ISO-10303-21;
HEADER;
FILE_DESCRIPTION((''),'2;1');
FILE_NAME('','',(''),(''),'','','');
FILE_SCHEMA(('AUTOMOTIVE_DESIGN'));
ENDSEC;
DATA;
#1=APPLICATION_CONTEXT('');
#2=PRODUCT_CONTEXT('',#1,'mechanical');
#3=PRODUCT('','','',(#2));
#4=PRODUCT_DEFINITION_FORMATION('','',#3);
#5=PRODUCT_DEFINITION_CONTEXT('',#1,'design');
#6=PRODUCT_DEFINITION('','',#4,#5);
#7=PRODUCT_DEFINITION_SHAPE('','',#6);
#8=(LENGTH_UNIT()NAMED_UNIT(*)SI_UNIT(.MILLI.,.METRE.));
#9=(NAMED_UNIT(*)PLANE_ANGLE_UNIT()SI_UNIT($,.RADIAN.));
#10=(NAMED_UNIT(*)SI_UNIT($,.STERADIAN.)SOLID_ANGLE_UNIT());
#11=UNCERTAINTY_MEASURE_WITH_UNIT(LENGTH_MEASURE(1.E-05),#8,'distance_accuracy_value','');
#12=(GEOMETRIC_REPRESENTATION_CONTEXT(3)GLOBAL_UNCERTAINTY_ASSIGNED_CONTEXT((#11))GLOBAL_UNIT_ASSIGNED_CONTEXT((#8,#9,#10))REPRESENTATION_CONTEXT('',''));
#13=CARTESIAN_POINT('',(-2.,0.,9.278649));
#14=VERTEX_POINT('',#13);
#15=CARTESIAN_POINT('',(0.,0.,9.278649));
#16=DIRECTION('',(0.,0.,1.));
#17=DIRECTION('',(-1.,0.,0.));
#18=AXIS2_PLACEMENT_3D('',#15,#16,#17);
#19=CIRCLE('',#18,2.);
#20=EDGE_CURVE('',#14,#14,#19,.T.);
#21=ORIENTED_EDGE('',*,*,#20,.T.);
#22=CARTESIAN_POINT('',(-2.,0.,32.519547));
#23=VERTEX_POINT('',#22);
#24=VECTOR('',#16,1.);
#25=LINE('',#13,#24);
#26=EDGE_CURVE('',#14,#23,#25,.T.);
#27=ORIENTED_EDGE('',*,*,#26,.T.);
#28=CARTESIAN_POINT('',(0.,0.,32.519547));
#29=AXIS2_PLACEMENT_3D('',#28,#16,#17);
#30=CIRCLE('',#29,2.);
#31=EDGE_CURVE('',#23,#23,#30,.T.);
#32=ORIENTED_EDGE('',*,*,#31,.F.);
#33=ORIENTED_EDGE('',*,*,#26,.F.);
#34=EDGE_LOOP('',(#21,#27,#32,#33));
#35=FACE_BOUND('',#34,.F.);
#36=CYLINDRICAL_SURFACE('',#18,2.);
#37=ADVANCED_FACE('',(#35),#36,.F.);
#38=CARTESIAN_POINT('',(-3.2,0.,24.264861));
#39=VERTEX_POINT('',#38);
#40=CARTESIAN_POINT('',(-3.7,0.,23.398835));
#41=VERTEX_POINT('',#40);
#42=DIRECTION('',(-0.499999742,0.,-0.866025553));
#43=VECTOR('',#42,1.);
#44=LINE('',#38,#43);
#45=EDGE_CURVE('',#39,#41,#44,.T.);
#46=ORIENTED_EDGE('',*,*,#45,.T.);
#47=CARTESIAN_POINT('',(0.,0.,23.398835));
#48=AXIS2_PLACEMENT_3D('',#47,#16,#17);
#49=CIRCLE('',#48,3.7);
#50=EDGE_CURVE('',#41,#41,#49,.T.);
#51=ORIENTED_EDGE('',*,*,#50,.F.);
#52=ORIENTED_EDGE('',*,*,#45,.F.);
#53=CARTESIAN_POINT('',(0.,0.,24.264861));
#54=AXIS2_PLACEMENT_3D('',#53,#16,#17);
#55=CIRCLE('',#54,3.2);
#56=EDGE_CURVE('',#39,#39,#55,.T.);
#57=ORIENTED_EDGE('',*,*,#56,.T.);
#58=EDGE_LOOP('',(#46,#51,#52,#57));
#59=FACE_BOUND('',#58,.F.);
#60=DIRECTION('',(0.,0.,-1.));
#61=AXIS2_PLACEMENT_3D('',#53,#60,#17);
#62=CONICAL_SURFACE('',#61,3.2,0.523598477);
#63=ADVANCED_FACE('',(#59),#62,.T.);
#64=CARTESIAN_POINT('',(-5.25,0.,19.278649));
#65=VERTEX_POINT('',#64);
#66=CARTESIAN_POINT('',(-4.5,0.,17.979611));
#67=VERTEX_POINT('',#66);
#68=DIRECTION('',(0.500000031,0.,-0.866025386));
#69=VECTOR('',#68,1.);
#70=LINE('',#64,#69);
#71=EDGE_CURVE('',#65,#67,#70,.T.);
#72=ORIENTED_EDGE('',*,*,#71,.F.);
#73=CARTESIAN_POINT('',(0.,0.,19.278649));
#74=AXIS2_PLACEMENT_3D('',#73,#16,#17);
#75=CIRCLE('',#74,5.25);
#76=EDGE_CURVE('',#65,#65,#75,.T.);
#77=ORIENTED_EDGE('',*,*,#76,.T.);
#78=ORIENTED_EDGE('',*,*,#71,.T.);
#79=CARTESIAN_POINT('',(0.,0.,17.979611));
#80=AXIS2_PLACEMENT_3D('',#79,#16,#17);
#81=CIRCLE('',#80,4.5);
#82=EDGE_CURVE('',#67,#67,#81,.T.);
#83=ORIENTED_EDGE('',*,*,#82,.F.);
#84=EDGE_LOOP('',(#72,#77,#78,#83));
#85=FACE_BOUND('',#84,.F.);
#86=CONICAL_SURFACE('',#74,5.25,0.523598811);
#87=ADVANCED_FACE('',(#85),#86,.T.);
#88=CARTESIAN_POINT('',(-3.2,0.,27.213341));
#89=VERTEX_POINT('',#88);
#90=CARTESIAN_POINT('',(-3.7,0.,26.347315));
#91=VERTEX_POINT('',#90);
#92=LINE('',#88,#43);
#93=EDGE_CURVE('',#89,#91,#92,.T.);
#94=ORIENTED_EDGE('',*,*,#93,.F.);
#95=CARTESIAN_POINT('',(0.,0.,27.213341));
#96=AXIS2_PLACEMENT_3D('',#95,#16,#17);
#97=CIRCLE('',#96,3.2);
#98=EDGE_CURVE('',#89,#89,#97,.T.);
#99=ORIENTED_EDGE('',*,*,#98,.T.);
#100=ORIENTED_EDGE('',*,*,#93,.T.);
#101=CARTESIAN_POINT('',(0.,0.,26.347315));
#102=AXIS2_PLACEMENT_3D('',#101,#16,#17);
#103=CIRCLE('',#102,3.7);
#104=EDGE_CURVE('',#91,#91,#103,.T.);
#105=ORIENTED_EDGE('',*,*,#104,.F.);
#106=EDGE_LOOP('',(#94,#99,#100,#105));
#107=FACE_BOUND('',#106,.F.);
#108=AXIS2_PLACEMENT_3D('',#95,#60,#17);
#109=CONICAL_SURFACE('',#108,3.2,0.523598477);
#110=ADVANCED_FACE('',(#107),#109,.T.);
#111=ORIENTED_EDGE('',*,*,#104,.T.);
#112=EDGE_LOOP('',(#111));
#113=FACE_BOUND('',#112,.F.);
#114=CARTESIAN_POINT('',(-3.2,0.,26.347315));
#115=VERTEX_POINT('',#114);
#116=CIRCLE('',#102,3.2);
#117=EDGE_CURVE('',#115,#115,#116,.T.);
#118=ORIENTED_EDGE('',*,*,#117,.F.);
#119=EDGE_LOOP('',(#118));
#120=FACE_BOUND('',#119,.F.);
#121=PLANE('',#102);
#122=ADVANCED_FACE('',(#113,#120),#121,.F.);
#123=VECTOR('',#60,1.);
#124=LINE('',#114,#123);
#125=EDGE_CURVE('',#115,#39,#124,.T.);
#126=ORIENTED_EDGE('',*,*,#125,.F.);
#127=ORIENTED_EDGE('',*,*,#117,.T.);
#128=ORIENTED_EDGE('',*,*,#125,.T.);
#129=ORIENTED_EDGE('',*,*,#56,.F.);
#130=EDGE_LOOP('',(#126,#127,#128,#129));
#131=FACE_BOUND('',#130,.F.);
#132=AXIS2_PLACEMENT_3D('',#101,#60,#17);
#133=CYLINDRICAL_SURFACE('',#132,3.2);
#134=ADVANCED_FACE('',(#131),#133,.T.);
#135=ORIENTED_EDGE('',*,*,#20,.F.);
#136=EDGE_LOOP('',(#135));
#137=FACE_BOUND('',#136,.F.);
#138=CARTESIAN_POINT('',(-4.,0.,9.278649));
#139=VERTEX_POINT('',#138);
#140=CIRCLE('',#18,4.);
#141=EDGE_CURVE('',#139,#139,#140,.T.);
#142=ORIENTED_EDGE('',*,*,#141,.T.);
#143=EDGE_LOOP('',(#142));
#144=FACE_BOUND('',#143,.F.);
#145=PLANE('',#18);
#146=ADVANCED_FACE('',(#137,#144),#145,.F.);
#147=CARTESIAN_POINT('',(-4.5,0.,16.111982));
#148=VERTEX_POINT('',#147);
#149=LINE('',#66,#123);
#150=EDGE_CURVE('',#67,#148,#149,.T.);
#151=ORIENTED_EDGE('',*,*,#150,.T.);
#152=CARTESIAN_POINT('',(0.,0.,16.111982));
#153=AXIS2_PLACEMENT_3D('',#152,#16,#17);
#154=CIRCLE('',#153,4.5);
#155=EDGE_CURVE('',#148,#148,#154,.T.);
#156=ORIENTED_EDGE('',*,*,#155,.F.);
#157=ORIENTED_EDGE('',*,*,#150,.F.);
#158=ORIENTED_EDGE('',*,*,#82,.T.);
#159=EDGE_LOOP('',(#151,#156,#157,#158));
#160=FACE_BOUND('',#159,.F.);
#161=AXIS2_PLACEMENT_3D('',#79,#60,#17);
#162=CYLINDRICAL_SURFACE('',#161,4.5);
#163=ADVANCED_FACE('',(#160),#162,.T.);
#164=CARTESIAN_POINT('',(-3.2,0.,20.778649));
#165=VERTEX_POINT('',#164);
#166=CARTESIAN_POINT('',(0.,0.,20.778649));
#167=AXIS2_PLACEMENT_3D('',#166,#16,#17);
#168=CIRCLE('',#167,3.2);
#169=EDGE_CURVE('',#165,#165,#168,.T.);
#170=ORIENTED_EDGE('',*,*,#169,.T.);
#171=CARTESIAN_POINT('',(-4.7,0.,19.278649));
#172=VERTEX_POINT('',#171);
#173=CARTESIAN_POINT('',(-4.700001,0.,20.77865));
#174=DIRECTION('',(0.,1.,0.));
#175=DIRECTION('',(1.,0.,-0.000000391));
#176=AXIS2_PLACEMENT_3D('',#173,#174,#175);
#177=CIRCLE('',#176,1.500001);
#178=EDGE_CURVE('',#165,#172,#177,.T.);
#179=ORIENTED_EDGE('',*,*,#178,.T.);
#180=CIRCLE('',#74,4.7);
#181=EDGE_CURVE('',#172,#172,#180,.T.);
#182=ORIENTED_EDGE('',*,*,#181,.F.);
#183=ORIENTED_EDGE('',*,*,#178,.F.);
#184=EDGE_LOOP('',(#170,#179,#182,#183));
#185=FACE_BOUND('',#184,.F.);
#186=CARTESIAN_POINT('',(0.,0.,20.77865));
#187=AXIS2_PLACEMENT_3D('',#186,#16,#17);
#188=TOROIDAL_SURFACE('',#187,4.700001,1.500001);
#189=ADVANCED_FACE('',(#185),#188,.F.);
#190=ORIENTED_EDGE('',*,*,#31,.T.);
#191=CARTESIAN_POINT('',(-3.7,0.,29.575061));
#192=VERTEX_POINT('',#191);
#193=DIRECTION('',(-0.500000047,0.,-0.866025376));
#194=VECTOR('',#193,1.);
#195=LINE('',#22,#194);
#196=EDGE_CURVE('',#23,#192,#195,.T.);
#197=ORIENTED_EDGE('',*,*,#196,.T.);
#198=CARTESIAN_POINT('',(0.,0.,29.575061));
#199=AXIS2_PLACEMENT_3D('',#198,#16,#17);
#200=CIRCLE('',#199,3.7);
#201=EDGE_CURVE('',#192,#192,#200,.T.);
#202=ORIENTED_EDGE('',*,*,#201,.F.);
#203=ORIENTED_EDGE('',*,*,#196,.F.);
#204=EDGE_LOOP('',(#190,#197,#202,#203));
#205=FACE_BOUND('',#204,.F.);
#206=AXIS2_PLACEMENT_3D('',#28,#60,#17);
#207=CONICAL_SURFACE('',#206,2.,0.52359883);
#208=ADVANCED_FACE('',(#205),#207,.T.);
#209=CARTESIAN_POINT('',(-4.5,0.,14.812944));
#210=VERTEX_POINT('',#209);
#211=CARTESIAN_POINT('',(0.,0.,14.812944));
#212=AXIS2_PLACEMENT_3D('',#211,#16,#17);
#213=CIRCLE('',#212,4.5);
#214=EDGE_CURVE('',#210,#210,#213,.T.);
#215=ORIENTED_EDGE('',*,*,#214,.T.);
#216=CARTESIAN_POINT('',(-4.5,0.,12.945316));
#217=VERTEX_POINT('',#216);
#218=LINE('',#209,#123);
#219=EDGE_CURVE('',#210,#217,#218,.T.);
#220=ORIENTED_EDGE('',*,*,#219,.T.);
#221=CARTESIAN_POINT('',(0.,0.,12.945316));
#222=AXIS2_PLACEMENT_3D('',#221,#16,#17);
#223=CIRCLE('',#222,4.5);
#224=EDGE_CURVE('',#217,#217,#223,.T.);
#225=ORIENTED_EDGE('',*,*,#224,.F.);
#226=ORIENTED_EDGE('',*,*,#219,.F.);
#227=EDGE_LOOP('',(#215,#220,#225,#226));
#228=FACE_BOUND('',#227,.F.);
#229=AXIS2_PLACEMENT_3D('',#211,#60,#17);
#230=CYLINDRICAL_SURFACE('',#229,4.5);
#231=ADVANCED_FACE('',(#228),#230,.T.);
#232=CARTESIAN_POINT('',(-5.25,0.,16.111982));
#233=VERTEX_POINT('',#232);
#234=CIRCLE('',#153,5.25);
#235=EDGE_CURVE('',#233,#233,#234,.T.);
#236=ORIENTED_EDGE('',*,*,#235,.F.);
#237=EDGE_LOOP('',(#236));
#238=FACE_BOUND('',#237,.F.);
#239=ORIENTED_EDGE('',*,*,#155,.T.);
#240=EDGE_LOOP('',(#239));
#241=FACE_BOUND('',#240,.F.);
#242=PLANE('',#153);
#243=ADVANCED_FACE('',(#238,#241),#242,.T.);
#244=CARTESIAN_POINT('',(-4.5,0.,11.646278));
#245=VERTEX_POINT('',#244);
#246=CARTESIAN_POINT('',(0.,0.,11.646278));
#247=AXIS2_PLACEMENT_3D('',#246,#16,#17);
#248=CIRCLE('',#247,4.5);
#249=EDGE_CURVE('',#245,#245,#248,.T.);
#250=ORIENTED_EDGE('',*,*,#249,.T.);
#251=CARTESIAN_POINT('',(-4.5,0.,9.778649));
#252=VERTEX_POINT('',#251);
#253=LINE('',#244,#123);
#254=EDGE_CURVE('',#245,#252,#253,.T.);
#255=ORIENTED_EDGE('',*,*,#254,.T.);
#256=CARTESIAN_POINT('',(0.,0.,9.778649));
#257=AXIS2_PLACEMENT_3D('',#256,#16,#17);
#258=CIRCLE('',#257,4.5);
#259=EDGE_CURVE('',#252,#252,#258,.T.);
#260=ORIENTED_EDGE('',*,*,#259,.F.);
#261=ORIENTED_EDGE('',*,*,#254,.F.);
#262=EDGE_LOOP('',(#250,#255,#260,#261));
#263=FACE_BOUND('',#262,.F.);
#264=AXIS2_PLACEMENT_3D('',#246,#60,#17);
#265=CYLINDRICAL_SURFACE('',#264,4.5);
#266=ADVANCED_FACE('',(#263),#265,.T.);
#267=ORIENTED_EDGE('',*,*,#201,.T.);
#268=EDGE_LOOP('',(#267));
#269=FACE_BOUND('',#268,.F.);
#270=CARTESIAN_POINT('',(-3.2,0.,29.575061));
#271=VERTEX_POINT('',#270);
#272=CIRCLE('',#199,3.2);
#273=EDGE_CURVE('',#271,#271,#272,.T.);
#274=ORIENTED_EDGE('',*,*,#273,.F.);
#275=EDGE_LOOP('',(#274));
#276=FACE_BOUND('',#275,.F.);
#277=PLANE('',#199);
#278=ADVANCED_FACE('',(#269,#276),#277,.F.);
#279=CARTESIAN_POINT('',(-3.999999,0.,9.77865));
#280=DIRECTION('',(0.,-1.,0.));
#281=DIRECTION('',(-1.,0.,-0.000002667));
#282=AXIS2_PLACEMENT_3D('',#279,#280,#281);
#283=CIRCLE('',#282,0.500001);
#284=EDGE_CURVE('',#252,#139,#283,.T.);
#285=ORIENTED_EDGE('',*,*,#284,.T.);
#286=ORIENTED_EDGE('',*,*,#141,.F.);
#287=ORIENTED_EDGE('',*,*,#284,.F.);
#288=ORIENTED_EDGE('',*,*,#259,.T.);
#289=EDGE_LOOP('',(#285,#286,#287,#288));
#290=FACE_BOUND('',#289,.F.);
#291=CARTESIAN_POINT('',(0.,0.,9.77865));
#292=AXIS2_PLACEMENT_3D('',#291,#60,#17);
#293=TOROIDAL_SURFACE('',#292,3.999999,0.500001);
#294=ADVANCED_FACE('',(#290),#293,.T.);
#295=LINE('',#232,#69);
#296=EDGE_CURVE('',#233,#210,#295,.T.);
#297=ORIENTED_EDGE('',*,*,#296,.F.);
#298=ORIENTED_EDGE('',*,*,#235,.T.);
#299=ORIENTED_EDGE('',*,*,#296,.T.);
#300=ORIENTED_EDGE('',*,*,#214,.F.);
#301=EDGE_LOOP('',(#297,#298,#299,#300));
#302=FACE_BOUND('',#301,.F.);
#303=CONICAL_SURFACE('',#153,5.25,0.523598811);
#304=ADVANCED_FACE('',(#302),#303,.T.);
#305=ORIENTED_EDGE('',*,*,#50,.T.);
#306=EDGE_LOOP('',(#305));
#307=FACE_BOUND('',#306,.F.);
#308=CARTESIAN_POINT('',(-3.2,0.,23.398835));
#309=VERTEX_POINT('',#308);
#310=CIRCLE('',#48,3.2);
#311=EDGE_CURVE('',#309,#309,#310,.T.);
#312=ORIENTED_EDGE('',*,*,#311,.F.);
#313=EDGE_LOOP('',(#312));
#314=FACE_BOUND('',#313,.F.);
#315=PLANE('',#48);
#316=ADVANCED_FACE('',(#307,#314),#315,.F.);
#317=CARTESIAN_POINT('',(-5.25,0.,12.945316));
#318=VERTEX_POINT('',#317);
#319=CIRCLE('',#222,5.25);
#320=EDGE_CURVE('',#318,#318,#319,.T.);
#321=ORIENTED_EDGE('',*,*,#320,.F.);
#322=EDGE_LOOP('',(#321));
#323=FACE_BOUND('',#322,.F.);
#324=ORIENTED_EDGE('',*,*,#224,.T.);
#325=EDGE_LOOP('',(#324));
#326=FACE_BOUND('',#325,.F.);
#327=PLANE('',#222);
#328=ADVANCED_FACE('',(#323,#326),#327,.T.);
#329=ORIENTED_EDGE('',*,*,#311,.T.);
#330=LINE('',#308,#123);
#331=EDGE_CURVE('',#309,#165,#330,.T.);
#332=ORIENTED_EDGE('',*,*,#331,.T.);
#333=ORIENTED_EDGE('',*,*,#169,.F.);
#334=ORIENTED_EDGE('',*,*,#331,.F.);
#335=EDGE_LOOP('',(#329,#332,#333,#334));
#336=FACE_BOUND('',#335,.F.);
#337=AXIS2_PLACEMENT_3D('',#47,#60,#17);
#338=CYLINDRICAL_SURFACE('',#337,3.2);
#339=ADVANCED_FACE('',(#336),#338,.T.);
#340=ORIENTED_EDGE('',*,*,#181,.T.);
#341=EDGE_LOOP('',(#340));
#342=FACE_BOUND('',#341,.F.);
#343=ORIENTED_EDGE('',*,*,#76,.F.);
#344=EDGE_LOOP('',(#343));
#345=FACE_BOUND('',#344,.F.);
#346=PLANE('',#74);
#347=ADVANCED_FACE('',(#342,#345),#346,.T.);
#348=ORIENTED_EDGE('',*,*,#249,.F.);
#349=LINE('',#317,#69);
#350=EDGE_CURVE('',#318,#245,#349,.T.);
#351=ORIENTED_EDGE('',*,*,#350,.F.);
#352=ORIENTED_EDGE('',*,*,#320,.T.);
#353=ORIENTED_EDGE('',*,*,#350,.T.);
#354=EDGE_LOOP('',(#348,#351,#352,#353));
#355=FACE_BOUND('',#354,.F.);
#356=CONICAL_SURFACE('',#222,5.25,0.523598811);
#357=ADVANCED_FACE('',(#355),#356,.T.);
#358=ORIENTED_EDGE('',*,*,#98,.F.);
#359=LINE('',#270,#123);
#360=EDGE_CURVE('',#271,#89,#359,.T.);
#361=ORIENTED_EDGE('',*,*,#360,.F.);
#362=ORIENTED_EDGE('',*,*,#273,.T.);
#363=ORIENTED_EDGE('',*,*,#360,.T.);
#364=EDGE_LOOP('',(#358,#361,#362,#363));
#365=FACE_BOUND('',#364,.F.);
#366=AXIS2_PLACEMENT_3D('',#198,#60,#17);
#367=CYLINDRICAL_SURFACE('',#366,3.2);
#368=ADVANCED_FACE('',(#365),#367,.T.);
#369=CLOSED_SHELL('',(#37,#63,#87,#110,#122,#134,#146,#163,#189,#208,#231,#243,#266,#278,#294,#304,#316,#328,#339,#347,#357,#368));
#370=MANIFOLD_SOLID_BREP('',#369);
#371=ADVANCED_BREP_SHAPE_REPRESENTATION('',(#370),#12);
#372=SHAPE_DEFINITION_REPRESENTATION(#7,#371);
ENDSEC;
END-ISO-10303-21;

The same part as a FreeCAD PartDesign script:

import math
import FreeCAD as App
import Part
import Sketcher

V = App.Vector
Q = App.Units.Quantity

doc = App.newDocument("Part")
body = doc.addObject("PartDesign::Body", "Body")

# Sketch on XZ plane
sketch1 = doc.addObject("Sketcher::SketchObject", "Sketch")
body.addObject(sketch1)
sketch1.AttachmentSupport = (doc.XZ_Plane, [""])
sketch1.MapMode = "FlatFace"
sketch1.addGeometry([
    Part.LineSegment(V(-4, 9.3, 0), V(-2, 9.3, 0)),  # 0
    Part.LineSegment(V(-2, 9.3, 0), V(-2, 32.5, 0)),  # 1
    Part.LineSegment(V(-2, 32.5, 0), V(-3.7, 29.6, 0)),  # 2
    Part.LineSegment(V(-3.7, 29.6, 0), V(-3.2, 29.6, 0)),  # 3
    Part.LineSegment(V(-3.2, 29.6, 0), V(-3.2, 27.2, 0)),  # 4
    Part.LineSegment(V(-3.2, 27.2, 0), V(-3.7, 26.3, 0)),  # 5
    Part.LineSegment(V(-3.7, 26.3, 0), V(-3.2, 26.3, 0)),  # 6
    Part.LineSegment(V(-3.2, 26.3, 0), V(-3.2, 24.3, 0)),  # 7
    Part.LineSegment(V(-3.2, 24.3, 0), V(-3.7, 23.4, 0)),  # 8
    Part.LineSegment(V(-3.7, 23.4, 0), V(-3.2, 23.4, 0)),  # 9
    Part.LineSegment(V(-3.2, 23.4, 0), V(-3.2, 20.8, 0)),  # 10
    Part.ArcOfCircle(Part.Circle(V(-4.7, 20.8, 0), V(0, 0, 1), 1.5), math.radians(-90), math.radians(0)),  # 11
    Part.LineSegment(V(-4.7, 19.3, 0), V(-5.2, 19.3, 0)),  # 12
    Part.LineSegment(V(-5.2, 19.3, 0), V(-4.5, 18, 0)),  # 13
    Part.LineSegment(V(-4.5, 18, 0), V(-4.5, 16.1, 0)),  # 14
    Part.LineSegment(V(-4.5, 16.1, 0), V(-5.2, 16.1, 0)),  # 15
    Part.LineSegment(V(-5.2, 16.1, 0), V(-4.5, 14.8, 0)),  # 16
    Part.LineSegment(V(-4.5, 14.8, 0), V(-4.5, 12.9, 0)),  # 17
    Part.LineSegment(V(-4.5, 12.9, 0), V(-5.2, 12.9, 0)),  # 18
    Part.LineSegment(V(-5.2, 12.9, 0), V(-4.5, 11.6, 0)),  # 19
    Part.LineSegment(V(-4.5, 11.6, 0), V(-4.5, 9.8, 0)),  # 20
    Part.ArcOfCircle(Part.Circle(V(-4, 9.8, 0), V(0, 0, 1), 0.5), math.radians(-180), math.radians(-90)),  # 21
], False)
sketch1.addConstraint([
    Sketcher.Constraint("Coincident", 0, 2, 1, 1),
    Sketcher.Constraint("Coincident", 1, 2, 2, 1),
    Sketcher.Constraint("Coincident", 2, 2, 3, 1),
    Sketcher.Constraint("Coincident", 3, 2, 4, 1),
    Sketcher.Constraint("Coincident", 4, 2, 5, 1),
    Sketcher.Constraint("Coincident", 5, 2, 6, 1),
    Sketcher.Constraint("Coincident", 6, 2, 7, 1),
    Sketcher.Constraint("Coincident", 7, 2, 8, 1),
    Sketcher.Constraint("Coincident", 8, 2, 9, 1),
    Sketcher.Constraint("Coincident", 9, 2, 10, 1),
    Sketcher.Constraint("Tangent", 10, 2, 11, 2),
    Sketcher.Constraint("Tangent", 11, 1, 12, 1),
    Sketcher.Constraint("Coincident", 12, 2, 13, 1),
    Sketcher.Constraint("Coincident", 13, 2, 14, 1),
    Sketcher.Constraint("Coincident", 14, 2, 15, 1),
    Sketcher.Constraint("Coincident", 15, 2, 16, 1),
    Sketcher.Constraint("Coincident", 16, 2, 17, 1),
    Sketcher.Constraint("Coincident", 17, 2, 18, 1),
    Sketcher.Constraint("Coincident", 18, 2, 19, 1),
    Sketcher.Constraint("Coincident", 19, 2, 20, 1),
    Sketcher.Constraint("Coincident", 20, 2, 21, 1),
    Sketcher.Constraint("Coincident", 21, 2, 0, 1),
    Sketcher.Constraint("Horizontal", 0),
    Sketcher.Constraint("Vertical", 1),
    Sketcher.Constraint("Horizontal", 3),
    Sketcher.Constraint("Vertical", 4),
    Sketcher.Constraint("Horizontal", 6),
    Sketcher.Constraint("Vertical", 7),
    Sketcher.Constraint("Horizontal", 9),
    Sketcher.Constraint("Vertical", 10),
    Sketcher.Constraint("Horizontal", 12),
    Sketcher.Constraint("Vertical", 14),
    Sketcher.Constraint("Horizontal", 15),
    Sketcher.Constraint("Vertical", 17),
    Sketcher.Constraint("Horizontal", 18),
    Sketcher.Constraint("Vertical", 20),
    Sketcher.Constraint("Parallel", 2, 5),
    Sketcher.Constraint("Parallel", 5, 8),
    Sketcher.Constraint("Parallel", 13, 16),
    Sketcher.Constraint("Parallel", 16, 19),
    Sketcher.Constraint("Horizontal", 21, 3, 20, 2),
    Sketcher.Constraint("Vertical", 2, 2, 5, 2),
    Sketcher.Constraint("Vertical", 4, 2, 6, 2),
    Sketcher.Constraint("Vertical", 5, 2, 8, 2),
    Sketcher.Constraint("Vertical", 7, 2, 9, 2),
    Sketcher.Constraint("Vertical", 12, 2, 15, 2),
    Sketcher.Constraint("Vertical", 14, 2, 16, 2),
    Sketcher.Constraint("Vertical", 15, 2, 18, 2),
    Sketcher.Constraint("Vertical", 17, 2, 19, 2),
    Sketcher.Constraint("Equal", 14, 17),
    Sketcher.Constraint("Equal", 17, 20),
    Sketcher.Constraint("Radius", 11, Q("1.500001 mm")),
    Sketcher.Constraint("Radius", 21, Q("0.500001 mm")),
    Sketcher.Constraint("DistanceX", 0, 1, 0, 2, Q("2 mm")),
    Sketcher.Constraint("Angle", 2, Q("-120.000003 deg")),
    Sketcher.Constraint("Angle", 13, Q("-59.999998 deg")),
    Sketcher.Constraint("Distance", 5, Q("1.000001 mm")),
    Sketcher.Constraint("DistanceX", 21, 3, -1, 1, Q("3.999999 mm")),
    Sketcher.Constraint("DistanceX", 0, 2, -1, 1, Q("2 mm")),
    Sketcher.Constraint("DistanceY", 21, 3, 11, 3, Q("10.999999 mm")),
    Sketcher.Constraint("Distance", 2, Q("3.4 mm")),
    Sketcher.Constraint("Distance", 13, Q("1.5 mm")),
    Sketcher.Constraint("DistanceY", 1, 1, 1, 2, Q("23.240898 mm")),
    Sketcher.Constraint("DistanceY", 4, 2, 4, 1, Q("2.36172 mm")),
    Sketcher.Constraint("DistanceY", 7, 2, 3, 2, Q("5.3102 mm")),
    Sketcher.Constraint("DistanceY", -1, 1, 11, 3, Q("20.77865 mm")),
])
revolution = doc.addObject("PartDesign::Revolution", "Revolution")
body.addObject(revolution)
revolution.Profile = sketch1
revolution.ReferenceAxis = (sketch1, ["V_Axis"])
revolution.Angle = 360

doc.recompute()
